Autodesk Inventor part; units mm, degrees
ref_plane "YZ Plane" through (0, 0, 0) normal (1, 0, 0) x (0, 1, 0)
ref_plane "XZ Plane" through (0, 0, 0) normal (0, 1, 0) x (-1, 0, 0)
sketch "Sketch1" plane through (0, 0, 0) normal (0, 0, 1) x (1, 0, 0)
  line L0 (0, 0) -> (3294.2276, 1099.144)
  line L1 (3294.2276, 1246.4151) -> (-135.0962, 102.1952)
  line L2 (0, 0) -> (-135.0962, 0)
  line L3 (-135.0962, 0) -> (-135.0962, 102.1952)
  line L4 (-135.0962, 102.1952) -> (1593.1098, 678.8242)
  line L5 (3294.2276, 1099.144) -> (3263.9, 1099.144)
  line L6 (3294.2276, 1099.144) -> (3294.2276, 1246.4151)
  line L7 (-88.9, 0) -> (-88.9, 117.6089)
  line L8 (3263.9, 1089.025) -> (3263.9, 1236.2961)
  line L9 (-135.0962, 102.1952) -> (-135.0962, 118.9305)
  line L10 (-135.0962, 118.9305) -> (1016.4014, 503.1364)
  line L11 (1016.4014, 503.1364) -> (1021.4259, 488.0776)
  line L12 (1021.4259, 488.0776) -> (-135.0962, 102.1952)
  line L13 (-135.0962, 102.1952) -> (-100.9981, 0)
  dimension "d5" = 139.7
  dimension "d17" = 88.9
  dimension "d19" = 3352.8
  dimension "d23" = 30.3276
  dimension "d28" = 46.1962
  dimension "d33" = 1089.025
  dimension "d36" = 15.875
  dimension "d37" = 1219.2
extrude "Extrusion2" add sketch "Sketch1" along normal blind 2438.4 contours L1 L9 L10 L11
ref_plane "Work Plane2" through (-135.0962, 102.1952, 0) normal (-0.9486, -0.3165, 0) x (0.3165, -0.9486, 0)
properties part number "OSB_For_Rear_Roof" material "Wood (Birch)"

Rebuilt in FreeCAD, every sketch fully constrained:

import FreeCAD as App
import Part
import Sketcher
from FreeCAD import Vector
Q = App.Units.Quantity

doc = App.newDocument("Part")
body = doc.addObject("PartDesign::Body", "Body")

sketch1 = doc.addObject("Sketcher::SketchObject", "Sketch")
body.addObject(sketch1)
sketch1.AttachmentSupport = (doc.XY_Plane, [""])
sketch1.MapMode = "FlatFace"
sketch1.addGeometry([
    Part.LineSegment(Vector(-135.0962, 102.1952, 0), Vector(1021.4259, 488.0776, 0)),
    Part.LineSegment(Vector(1021.4259, 488.0776, 0), Vector(1016.4014, 503.1364, 0)),
    Part.LineSegment(Vector(1016.4014, 503.1364, 0), Vector(-135.0962, 118.9305, 0)),
    Part.LineSegment(Vector(-135.0962, 118.9305, 0), Vector(-135.0962, 102.1952, 0)),
], False)
sketch1.addConstraint([
    Sketcher.Constraint("Coincident", 0, 2, 1, 1),
    Sketcher.Constraint("Coincident", 1, 2, 2, 1),
    Sketcher.Constraint("Coincident", 2, 2, 3, 1),
    Sketcher.Constraint("Coincident", 3, 2, 0, 1),
    Sketcher.Constraint("Vertical", 3),
    Sketcher.Constraint("Distance", 0, Q("48 in")),
    Sketcher.Constraint("Distance", 1, Q("0.625 in")),
    Sketcher.Constraint("DistanceY", 3, 2, 3, 1, Q("16.7353 mm")),
    Sketcher.Constraint("DistanceX", -1, 1, 1, 2, Q("40.0158 in")),
    Sketcher.Constraint("DistanceY", -1, 1, 2, 2, Q("4.6823 in")),
    Sketcher.Constraint("Distance", 2, Q("1213.9032 mm")),
    Sketcher.Constraint("DistanceY", -1, 1, 0, 2, Q("488.0776 mm")),
])
pad1 = doc.addObject("PartDesign::Pad", "Pad")
body.addObject(pad1)
pad1.Profile = sketch1
pad1.Length = Q("96 in")

doc.recompute()
